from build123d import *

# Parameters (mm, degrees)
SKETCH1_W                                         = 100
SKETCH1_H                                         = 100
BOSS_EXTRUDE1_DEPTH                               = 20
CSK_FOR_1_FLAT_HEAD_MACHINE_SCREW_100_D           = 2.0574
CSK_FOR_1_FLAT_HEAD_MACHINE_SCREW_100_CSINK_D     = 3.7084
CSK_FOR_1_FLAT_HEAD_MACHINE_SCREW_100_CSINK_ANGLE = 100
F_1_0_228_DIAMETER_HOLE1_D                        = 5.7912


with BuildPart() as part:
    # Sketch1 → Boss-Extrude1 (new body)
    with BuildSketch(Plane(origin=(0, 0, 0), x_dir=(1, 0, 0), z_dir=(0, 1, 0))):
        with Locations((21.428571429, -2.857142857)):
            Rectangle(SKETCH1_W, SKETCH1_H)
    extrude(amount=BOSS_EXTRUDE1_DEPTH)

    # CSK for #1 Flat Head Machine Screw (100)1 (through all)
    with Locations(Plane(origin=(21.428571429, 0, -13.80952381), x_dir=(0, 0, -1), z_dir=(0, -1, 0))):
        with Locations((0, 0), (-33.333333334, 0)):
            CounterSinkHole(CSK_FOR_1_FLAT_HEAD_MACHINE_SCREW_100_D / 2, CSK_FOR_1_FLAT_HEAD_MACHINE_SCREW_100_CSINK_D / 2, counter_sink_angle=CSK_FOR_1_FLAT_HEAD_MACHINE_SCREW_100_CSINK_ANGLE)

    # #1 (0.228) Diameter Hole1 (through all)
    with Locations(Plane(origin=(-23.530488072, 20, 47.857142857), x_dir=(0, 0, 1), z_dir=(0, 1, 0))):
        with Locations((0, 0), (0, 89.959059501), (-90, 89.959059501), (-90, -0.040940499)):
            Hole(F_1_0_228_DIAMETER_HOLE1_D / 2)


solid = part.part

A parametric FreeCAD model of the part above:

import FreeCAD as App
import Part
import Sketcher
from FreeCAD import Vector


def add_polygon(sketch, points):
    """Adds a closed chain of lines whose ends are joined by coincident constraints."""
    first, n = sketch.GeometryCount, len(points)
    for a, b in zip(points, points[1:] + points[:1]):
        sketch.addGeometry(Part.LineSegment(App.Vector(*a, 0), App.Vector(*b, 0)), False)
    for i in range(n):
        sketch.addConstraint(Sketcher.Constraint("Coincident", first + i, 2, first + (i + 1) % n, 1))

doc = App.newDocument("Part")
body = doc.addObject("PartDesign::Body", "Body")

# Sketch on XZ plane
sketch1 = body.newObject("Sketcher::SketchObject", "Sketch")
sketch1.AttachmentSupport = (doc.getObject("XZ_Plane"), [""])
sketch1.MapMode = "FlatFace"
add_polygon(sketch1, [(-28.571429, -47.142857), (-28.571429, 52.857143), (71.428571, 52.857143), (71.428571, -47.142857)])  # lines 0-3
sketch1.addConstraint([
    Sketcher.Constraint("Vertical", 0),
    Sketcher.Constraint("Horizontal", 1),
    Sketcher.Constraint("Vertical", 2),
    Sketcher.Constraint("Horizontal", 3),
    Sketcher.Constraint("Equal", 3, 0),
    Sketcher.Constraint("DistanceX", 1, 1, 1, 2, 100.0),
    Sketcher.Constraint("DistanceX", 0, 2, -1, 1, 28.571429),
    Sketcher.Constraint("DistanceY", -1, 1, 0, 2, 52.857143),
])
pad1 = body.newObject("PartDesign::Pad", "Pad")
pad1.Profile = sketch1
pad1.Length = 20
pad1.Reversed = True

# Sketch on XZ plane
sketch2 = body.newObject("Sketcher::SketchObject", "Sketch001")
sketch2.AttachmentSupport = (doc.getObject("XZ_Plane"), [""])
sketch2.MapMode = "FlatFace"
sketch2.addGeometry([
    Part.Circle(Vector(21.428571, -13.809524, 0), Vector(0, 0, 1), 1.0287),
    Part.Circle(Vector(21.428571, 19.52381, 0), Vector(0, 0, 1), 1.0287),
], False)
sketch2.addConstraint([
    Sketcher.Constraint("Equal", 0, 1),
    Sketcher.Constraint("Vertical", 0, 3, 1, 3),
    Sketcher.Constraint("Diameter", 0, 2.0574),
    Sketcher.Constraint("DistanceX", -1, 1, 0, 3, 21.428571),
    Sketcher.Constraint("DistanceY", -1, 1, 1, 3, 19.52381),
    Sketcher.Constraint("DistanceY", 0, 3, -1, 1, 13.809524),
])
doc.recompute()
hole = body.newObject("PartDesign::Hole", "Hole")
hole.Profile = sketch2
hole.ThreadType = "None"
hole.Diameter = 2.0574
hole.DepthType = "ThroughAll"
hole.HoleCutType = "Countersink"
hole.HoleCutDiameter = 3.7084
hole.HoleCutCountersinkAngle = 100

# Sketch on XZ plane
sketch3 = body.newObject("Sketcher::SketchObject", "Sketch002")
sketch3.AttachmentSupport = (doc.getObject("XZ_Plane"), [""])
sketch3.MapMode = "FlatFace"
sketch3.AttachmentOffset = App.Placement(Vector(0, 0, -20), App.Rotation())
sketch3.addGeometry([
    Part.Circle(Vector(-23.530488, 47.857143, 0), Vector(0, 0, 1), 2.8956),
    Part.Circle(Vector(66.428571, 47.857143, 0), Vector(0, 0, 1), 2.8956),
    Part.Circle(Vector(66.428571, -42.142857, 0), Vector(0, 0, 1), 2.8956),
    Part.Circle(Vector(-23.571429, -42.142857, 0), Vector(0, 0, 1), 2.8956),
], False)
sketch3.addConstraint([
    Sketcher.Constraint("Equal", 0, 1),
    Sketcher.Constraint("Equal", 1, 2),
    Sketcher.Constraint("Equal", 2, 3),
    Sketcher.Constraint("Horizontal", 0, 3, 1, 3),
    Sketcher.Constraint("Horizontal", 2, 3, 3, 3),
    Sketcher.Constraint("Vertical", 1, 3, 2, 3),
    Sketcher.Constraint("DistanceY", 2, 3, 1, 3, 90.0),
    Sketcher.Constraint("DistanceX", 3, 3, 2, 3, 90.0),
    Sketcher.Constraint("Diameter", 0, 5.7912),
    Sketcher.Constraint("DistanceX", 0, 3, -1, 1, 23.530488),
    Sketcher.Constraint("DistanceX", -1, 1, 1, 3, 66.428571),
    Sketcher.Constraint("DistanceY", -1, 1, 0, 3, 47.857143),
])
doc.recompute()
hole2 = body.newObject("PartDesign::Hole", "Hole001")
hole2.Profile = sketch3
hole2.ThreadType = "None"
hole2.Diameter = 5.7912
hole2.DepthType = "ThroughAll"
hole2.Reversed = True

doc.recompute()
